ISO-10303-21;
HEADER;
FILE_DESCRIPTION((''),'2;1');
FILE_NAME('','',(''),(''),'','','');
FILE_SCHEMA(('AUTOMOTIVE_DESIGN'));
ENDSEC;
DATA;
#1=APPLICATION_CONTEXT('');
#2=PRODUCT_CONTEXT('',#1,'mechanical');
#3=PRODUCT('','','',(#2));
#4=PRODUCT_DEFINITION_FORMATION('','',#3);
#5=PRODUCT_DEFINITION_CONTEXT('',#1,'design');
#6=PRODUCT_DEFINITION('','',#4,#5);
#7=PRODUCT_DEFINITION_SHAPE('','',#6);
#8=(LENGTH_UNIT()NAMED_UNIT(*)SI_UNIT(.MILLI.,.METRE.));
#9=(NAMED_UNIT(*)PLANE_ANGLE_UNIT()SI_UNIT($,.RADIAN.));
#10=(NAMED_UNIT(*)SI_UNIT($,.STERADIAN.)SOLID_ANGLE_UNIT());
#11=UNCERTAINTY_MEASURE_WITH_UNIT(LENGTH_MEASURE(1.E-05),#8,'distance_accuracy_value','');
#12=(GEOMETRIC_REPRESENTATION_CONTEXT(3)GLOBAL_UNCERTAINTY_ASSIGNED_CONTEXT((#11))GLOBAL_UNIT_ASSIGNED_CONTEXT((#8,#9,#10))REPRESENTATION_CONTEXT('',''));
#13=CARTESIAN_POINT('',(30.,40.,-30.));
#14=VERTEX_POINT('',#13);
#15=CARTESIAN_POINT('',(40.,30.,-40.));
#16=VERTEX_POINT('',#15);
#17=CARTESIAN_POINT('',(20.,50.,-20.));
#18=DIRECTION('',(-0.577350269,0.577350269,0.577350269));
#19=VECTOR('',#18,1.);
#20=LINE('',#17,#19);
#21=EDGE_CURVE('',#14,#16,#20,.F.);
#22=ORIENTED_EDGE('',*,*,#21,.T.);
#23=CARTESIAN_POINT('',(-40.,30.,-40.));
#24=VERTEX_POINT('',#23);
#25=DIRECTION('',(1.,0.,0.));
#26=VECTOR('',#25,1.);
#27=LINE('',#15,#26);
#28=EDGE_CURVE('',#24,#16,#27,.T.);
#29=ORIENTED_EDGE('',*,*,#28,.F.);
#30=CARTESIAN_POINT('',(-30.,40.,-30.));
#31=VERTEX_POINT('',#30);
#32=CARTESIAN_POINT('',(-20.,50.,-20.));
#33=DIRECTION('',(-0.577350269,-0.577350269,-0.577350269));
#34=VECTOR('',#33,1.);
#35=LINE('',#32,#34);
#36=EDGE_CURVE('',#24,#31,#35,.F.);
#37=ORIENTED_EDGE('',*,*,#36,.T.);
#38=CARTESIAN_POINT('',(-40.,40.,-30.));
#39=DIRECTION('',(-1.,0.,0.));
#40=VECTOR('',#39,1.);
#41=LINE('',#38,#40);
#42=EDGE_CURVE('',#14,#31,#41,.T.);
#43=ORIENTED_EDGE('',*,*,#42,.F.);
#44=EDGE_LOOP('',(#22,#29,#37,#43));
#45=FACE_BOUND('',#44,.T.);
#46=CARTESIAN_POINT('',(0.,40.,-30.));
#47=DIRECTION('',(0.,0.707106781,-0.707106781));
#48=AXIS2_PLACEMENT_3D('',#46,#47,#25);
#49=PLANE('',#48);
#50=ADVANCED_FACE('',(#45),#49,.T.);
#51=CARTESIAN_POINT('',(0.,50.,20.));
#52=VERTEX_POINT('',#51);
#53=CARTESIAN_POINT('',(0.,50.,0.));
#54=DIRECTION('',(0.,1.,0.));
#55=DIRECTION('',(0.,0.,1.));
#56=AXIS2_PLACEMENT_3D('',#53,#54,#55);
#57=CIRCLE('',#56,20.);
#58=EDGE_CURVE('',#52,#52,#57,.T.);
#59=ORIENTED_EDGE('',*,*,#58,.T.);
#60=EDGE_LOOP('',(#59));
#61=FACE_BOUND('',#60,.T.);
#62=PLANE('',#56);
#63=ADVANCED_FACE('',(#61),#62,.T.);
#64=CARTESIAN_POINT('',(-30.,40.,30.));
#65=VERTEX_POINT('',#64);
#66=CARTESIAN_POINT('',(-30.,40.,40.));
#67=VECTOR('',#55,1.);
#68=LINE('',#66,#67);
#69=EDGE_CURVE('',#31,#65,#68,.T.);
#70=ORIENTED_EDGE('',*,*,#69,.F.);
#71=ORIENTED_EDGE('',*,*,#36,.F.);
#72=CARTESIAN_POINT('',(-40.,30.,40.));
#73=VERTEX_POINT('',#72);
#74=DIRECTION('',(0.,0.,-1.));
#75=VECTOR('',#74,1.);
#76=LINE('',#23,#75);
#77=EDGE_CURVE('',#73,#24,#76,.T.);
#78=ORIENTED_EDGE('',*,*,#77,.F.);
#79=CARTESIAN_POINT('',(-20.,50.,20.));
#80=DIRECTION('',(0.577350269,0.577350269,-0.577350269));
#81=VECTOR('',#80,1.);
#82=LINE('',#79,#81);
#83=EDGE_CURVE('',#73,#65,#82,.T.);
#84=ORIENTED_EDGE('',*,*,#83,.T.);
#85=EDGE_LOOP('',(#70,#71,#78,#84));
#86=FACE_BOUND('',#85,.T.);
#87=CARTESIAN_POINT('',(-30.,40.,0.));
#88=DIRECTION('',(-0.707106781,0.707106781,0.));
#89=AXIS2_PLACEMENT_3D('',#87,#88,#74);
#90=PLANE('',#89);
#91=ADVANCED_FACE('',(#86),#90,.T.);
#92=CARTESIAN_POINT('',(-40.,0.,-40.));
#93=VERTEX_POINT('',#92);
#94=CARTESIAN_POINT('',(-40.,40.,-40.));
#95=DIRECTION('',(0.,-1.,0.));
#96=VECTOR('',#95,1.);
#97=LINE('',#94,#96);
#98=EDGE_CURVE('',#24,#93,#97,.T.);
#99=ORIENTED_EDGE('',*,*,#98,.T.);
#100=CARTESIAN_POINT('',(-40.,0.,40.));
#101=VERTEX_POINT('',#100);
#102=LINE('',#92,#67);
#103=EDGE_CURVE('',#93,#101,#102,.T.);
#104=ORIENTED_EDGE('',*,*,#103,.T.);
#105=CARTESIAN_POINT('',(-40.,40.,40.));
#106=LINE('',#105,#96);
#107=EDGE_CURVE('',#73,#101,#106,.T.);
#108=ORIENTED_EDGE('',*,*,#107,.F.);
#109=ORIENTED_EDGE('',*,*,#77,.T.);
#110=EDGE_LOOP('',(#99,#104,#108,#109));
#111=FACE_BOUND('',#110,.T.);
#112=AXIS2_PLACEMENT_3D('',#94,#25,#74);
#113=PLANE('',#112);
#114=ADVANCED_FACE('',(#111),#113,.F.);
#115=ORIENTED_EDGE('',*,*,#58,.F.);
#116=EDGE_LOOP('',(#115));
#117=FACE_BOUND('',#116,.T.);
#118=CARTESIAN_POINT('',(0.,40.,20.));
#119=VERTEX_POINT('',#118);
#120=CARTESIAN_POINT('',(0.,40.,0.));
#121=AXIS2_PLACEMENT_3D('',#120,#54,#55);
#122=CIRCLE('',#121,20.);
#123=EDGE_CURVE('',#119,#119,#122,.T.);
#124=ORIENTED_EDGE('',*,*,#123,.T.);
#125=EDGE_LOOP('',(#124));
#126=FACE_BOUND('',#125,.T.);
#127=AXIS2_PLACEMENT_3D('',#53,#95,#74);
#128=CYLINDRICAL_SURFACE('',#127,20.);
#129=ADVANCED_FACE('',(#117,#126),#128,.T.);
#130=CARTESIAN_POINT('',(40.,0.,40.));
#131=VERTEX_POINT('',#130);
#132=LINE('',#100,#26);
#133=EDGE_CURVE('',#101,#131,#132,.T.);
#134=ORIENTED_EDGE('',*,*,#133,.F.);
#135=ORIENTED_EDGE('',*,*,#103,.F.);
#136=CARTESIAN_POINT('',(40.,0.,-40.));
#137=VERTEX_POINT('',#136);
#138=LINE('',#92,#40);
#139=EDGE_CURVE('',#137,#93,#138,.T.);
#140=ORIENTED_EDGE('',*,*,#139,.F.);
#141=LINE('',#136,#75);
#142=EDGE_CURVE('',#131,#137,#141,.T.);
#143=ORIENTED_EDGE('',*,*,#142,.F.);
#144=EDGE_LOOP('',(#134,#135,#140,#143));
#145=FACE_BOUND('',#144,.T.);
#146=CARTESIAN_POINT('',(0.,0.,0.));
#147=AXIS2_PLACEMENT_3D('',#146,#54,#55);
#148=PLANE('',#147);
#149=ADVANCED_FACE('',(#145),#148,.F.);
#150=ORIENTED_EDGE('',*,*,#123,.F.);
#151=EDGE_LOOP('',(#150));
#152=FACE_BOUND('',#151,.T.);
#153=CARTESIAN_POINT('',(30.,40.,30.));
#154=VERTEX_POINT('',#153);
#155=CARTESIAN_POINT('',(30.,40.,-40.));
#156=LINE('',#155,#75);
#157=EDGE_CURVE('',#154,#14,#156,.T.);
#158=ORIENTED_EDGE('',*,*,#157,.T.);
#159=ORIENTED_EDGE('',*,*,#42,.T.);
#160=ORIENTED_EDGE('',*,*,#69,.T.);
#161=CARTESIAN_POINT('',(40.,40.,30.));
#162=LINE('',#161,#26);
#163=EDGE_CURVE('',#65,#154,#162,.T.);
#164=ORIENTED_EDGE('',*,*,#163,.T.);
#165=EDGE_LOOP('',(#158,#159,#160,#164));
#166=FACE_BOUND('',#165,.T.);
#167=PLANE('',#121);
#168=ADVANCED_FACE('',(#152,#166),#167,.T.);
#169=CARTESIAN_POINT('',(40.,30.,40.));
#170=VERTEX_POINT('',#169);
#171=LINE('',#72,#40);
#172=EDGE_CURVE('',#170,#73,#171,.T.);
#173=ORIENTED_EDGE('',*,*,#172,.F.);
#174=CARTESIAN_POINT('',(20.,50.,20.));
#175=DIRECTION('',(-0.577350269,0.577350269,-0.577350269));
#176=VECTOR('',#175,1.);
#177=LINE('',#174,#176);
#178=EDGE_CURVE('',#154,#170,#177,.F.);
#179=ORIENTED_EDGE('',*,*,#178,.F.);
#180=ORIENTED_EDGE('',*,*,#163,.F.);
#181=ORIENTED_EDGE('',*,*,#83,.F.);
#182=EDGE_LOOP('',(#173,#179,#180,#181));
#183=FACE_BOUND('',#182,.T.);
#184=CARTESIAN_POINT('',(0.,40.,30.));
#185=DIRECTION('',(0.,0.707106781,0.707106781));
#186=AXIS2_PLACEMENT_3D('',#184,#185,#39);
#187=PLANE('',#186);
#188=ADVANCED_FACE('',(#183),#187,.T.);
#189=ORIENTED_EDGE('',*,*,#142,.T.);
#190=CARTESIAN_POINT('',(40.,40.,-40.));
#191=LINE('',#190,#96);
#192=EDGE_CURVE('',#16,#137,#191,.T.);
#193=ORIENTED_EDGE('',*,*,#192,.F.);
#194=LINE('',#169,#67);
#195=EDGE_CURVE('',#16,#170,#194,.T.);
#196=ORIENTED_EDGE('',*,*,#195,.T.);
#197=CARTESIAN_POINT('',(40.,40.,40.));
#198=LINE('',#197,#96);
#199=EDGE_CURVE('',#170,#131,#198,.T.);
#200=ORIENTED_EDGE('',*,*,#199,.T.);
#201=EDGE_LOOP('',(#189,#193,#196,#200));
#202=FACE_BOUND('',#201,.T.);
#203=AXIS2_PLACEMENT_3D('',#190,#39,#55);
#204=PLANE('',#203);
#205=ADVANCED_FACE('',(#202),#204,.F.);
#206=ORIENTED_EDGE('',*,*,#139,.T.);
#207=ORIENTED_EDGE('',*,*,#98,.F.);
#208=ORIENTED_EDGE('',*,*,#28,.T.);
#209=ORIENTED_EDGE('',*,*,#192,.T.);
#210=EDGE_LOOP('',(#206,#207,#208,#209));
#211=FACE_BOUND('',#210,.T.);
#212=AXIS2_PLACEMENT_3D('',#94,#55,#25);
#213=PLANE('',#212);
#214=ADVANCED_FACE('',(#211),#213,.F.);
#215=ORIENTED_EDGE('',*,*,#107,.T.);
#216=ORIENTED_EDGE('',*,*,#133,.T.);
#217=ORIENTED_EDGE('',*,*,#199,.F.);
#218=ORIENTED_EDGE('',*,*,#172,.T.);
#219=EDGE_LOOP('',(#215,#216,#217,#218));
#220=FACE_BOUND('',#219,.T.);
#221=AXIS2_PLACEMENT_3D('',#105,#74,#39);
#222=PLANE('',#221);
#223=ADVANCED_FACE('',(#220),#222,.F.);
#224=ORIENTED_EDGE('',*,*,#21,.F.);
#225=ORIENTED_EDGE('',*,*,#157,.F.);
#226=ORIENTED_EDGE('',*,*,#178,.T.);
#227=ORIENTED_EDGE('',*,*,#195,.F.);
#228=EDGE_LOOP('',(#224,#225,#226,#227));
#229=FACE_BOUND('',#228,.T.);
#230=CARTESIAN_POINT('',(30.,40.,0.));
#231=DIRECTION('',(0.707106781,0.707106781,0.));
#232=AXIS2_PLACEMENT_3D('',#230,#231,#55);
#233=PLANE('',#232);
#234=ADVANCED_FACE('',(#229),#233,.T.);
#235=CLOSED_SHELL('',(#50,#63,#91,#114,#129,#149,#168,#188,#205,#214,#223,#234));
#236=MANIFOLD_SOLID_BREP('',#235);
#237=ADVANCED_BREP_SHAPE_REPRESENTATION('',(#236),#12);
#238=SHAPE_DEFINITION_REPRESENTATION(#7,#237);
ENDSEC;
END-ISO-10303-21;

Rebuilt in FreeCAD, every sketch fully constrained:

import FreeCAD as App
import Part
import Sketcher

V = App.Vector


def edges_at(feature, points):
    """Names of the edges that pass closest to the given points."""
    edges = feature.Shape.Edges
    near = lambda p: min(range(len(edges)), key=lambda i: edges[i].distToShape(Part.Vertex(*p))[0])
    return sorted({f"Edge{near(p) + 1}" for p in points})


def add_polygon(sketch, points):
    """Adds a closed chain of lines whose ends are joined by coincident constraints."""
    first, n = sketch.GeometryCount, len(points)
    for a, b in zip(points, points[1:] + points[:1]):
        sketch.addGeometry(Part.LineSegment(App.Vector(*a, 0), App.Vector(*b, 0)), False)
    for i in range(n):
        sketch.addConstraint(Sketcher.Constraint("Coincident", first + i, 2, first + (i + 1) % n, 1))

doc = App.newDocument("Part")
body = doc.addObject("PartDesign::Body", "Body")

# Sketch on XZ plane
sketch1 = body.newObject("Sketcher::SketchObject", "Sketch")
sketch1.AttachmentSupport = (doc.getObject("XZ_Plane"), [""])
sketch1.MapMode = "FlatFace"
add_polygon(sketch1, [(-40, -40), (-40, 40), (40, 40), (40, -40)])  # lines 0-3
sketch1.addConstraint(Sketcher.Constraint("Vertical", 0))
sketch1.addConstraint(Sketcher.Constraint("Horizontal", 1))
sketch1.addConstraint(Sketcher.Constraint("Vertical", 2))
sketch1.addConstraint(Sketcher.Constraint("Horizontal", 3))
sketch1.addConstraint(Sketcher.Constraint("Symmetric", 0, 2, 2, 2, -1, 1))
sketch1.addConstraint(Sketcher.Constraint("Equal", 3, 0))
sketch1.addConstraint(Sketcher.Constraint("DistanceX", 1, 1, 1, 2, 80.0))
pad1 = body.newObject("PartDesign::Pad", "Pad")
pad1.Profile = sketch1
pad1.Length = 40
pad1.Reversed = True

# Sketch on XZ plane
sketch2 = body.newObject("Sketcher::SketchObject", "Sketch001")
sketch2.AttachmentSupport = (doc.getObject("XZ_Plane"), [""])
sketch2.MapMode = "FlatFace"
sketch2.AttachmentOffset = App.Placement(V(0, 0, -40), App.Rotation())
sketch2.addGeometry(Part.Circle(V(0, 0, 0), V(0, 0, 1), 20), False)
sketch2.addConstraint(Sketcher.Constraint("Coincident", 0, 3, -1, 1))
sketch2.addConstraint(Sketcher.Constraint("Diameter", 0, 40.0))
pad2 = body.newObject("PartDesign::Pad", "Pad001")
pad2.Profile = sketch2
pad2.Length = 10
pad2.Reversed = True
doc.recompute()

chamfer = body.newObject("PartDesign::Chamfer", "Chamfer")
chamfer.Base = (pad2, edges_at(pad2, [
    (40, 40, 0),
    (0, 40, -40),
    (-40, 40, 0),
    (0, 40, 40),
]))
chamfer.Size = 10

doc.recompute()
